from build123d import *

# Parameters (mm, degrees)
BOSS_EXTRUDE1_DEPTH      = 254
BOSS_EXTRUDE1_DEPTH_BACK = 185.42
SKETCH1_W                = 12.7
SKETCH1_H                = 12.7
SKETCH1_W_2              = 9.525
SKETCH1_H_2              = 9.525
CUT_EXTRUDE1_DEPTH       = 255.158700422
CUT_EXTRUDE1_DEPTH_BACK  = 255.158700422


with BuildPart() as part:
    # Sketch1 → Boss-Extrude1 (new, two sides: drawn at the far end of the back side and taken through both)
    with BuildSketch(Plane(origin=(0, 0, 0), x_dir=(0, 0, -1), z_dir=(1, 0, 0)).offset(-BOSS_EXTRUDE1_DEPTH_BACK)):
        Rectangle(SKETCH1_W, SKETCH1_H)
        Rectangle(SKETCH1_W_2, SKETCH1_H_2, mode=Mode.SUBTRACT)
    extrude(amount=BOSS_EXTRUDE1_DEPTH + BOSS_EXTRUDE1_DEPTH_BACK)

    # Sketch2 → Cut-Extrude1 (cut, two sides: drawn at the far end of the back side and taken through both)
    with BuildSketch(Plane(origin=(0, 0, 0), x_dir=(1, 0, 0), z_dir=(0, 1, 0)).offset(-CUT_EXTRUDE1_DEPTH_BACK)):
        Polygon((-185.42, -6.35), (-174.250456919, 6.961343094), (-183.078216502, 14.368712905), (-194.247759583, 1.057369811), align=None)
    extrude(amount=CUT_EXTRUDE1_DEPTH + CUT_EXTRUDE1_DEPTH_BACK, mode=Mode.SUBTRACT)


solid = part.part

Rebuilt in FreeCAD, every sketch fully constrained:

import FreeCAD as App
import Part
import Sketcher
Q = App.Units.Quantity

doc = App.newDocument("Part")
body = doc.addObject("PartDesign::Body", "Body")

sketch1 = doc.addObject("Sketcher::SketchObject", "Sketch")
body.addObject(sketch1)
sketch1.AttachmentSupport = (doc.YZ_Plane, [""])
sketch1.MapMode = "FlatFace"
sketch1.addGeometry(Part.LineSegment(App.Vector(6, 6, 0), App.Vector(-6, 6, 0)), False)
sketch1.addGeometry(Part.LineSegment(App.Vector(-6, 6, 0), App.Vector(-6, -6, 0)), False)
sketch1.addGeometry(Part.LineSegment(App.Vector(-6, -6, 0), App.Vector(6, -6, 0)), False)
sketch1.addGeometry(Part.LineSegment(App.Vector(6, -6, 0), App.Vector(6, 6, 0)), False)
sketch1.addGeometry(Part.LineSegment(App.Vector(-5, -5, 0), App.Vector(-5, 5, 0)), False)
sketch1.addGeometry(Part.LineSegment(App.Vector(-5, 5, 0), App.Vector(5, 5, 0)), False)
sketch1.addGeometry(Part.LineSegment(App.Vector(5, 5, 0), App.Vector(5, -5, 0)), False)
sketch1.addGeometry(Part.LineSegment(App.Vector(5, -5, 0), App.Vector(-5, -5, 0)), False)
sketch1.addConstraint(Sketcher.Constraint("Coincident", 0, 2, 1, 1))
sketch1.addConstraint(Sketcher.Constraint("Coincident", 1, 2, 2, 1))
sketch1.addConstraint(Sketcher.Constraint("Coincident", 2, 2, 3, 1))
sketch1.addConstraint(Sketcher.Constraint("Coincident", 3, 2, 0, 1))
sketch1.addConstraint(Sketcher.Constraint("Coincident", 4, 2, 5, 1))
sketch1.addConstraint(Sketcher.Constraint("Coincident", 5, 2, 6, 1))
sketch1.addConstraint(Sketcher.Constraint("Coincident", 6, 2, 7, 1))
sketch1.addConstraint(Sketcher.Constraint("Coincident", 7, 2, 4, 1))
sketch1.addConstraint(Sketcher.Constraint("Horizontal", 0))
sketch1.addConstraint(Sketcher.Constraint("Vertical", 1))
sketch1.addConstraint(Sketcher.Constraint("Horizontal", 2))
sketch1.addConstraint(Sketcher.Constraint("Vertical", 3))
sketch1.addConstraint(Sketcher.Constraint("Vertical", 4))
sketch1.addConstraint(Sketcher.Constraint("Horizontal", 5))
sketch1.addConstraint(Sketcher.Constraint("Vertical", 6))
sketch1.addConstraint(Sketcher.Constraint("Horizontal", 7))
sketch1.addConstraint(Sketcher.Constraint("Symmetric", 0, 2, 2, 2, -1, 1))
sketch1.addConstraint(Sketcher.Constraint("Symmetric", 4, 2, 6, 2, -1, 1))
sketch1.addConstraint(Sketcher.Constraint("Equal", 2, 1))
sketch1.addConstraint(Sketcher.Constraint("Equal", 7, 4))
sketch1.addConstraint(Sketcher.Constraint("DistanceX", 0, 2, 0, 1, Q("0.5 in")))
sketch1.addConstraint(Sketcher.Constraint("DistanceX", 5, 1, 5, 2, Q("0.375 in")))
pad1 = doc.addObject("PartDesign::Pad", "Pad")
body.addObject(pad1)
pad1.Profile = sketch1
pad1.Type = "TwoLengths"
pad1.Length = Q("10 in")
pad1.Length2 = Q("7.3 in")

sketch2 = doc.addObject("Sketcher::SketchObject", "Sketch001")
body.addObject(sketch2)
sketch2.AttachmentSupport = (doc.XZ_Plane, [""])
sketch2.MapMode = "FlatFace"
sketch2.addGeometry(Part.LineSegment(App.Vector(-185, 6, 0), App.Vector(-174, -7, 0)), False)
sketch2.addGeometry(Part.LineSegment(App.Vector(-174, -7, 0), App.Vector(-183, -14, 0)), False)
sketch2.addGeometry(Part.LineSegment(App.Vector(-183, -14, 0), App.Vector(-194, -1, 0)), False)
sketch2.addGeometry(Part.LineSegment(App.Vector(-194, -1, 0), App.Vector(-185, 6, 0)), False)
sketch2.addConstraint(Sketcher.Constraint("Coincident", 0, 2, 1, 1))
sketch2.addConstraint(Sketcher.Constraint("Coincident", 1, 2, 2, 1))
sketch2.addConstraint(Sketcher.Constraint("Coincident", 2, 2, 3, 1))
sketch2.addConstraint(Sketcher.Constraint("Coincident", 3, 2, 0, 1))
sketch2.addConstraint(Sketcher.Constraint("Perpendicular", 0, 1))
sketch2.addConstraint(Sketcher.Constraint("Perpendicular", 1, 2))
sketch2.addConstraint(Sketcher.Constraint("Perpendicular", 2, 3))
sketch2.addConstraint(Sketcher.Constraint("Angle", 0, Q("-50 deg")))
sketch2.addConstraint(Sketcher.Constraint("DistanceX", 3, 2, -1, 1, Q("7.3 in")))
sketch2.addConstraint(Sketcher.Constraint("DistanceY", -1, 1, 3, 2, Q("0.25 in")))
sketch2.addConstraint(Sketcher.Constraint("Distance", 1, Q("11.523822 mm")))
sketch2.addConstraint(Sketcher.Constraint("Distance", 0, Q("17.376724 mm")))
pocket1 = doc.addObject("PartDesign::Pocket", "Pocket")
body.addObject(pocket1)
pocket1.Profile = sketch2
pocket1.Type = "ThroughAll"
pocket1.Midplane = True

doc.recompute()
